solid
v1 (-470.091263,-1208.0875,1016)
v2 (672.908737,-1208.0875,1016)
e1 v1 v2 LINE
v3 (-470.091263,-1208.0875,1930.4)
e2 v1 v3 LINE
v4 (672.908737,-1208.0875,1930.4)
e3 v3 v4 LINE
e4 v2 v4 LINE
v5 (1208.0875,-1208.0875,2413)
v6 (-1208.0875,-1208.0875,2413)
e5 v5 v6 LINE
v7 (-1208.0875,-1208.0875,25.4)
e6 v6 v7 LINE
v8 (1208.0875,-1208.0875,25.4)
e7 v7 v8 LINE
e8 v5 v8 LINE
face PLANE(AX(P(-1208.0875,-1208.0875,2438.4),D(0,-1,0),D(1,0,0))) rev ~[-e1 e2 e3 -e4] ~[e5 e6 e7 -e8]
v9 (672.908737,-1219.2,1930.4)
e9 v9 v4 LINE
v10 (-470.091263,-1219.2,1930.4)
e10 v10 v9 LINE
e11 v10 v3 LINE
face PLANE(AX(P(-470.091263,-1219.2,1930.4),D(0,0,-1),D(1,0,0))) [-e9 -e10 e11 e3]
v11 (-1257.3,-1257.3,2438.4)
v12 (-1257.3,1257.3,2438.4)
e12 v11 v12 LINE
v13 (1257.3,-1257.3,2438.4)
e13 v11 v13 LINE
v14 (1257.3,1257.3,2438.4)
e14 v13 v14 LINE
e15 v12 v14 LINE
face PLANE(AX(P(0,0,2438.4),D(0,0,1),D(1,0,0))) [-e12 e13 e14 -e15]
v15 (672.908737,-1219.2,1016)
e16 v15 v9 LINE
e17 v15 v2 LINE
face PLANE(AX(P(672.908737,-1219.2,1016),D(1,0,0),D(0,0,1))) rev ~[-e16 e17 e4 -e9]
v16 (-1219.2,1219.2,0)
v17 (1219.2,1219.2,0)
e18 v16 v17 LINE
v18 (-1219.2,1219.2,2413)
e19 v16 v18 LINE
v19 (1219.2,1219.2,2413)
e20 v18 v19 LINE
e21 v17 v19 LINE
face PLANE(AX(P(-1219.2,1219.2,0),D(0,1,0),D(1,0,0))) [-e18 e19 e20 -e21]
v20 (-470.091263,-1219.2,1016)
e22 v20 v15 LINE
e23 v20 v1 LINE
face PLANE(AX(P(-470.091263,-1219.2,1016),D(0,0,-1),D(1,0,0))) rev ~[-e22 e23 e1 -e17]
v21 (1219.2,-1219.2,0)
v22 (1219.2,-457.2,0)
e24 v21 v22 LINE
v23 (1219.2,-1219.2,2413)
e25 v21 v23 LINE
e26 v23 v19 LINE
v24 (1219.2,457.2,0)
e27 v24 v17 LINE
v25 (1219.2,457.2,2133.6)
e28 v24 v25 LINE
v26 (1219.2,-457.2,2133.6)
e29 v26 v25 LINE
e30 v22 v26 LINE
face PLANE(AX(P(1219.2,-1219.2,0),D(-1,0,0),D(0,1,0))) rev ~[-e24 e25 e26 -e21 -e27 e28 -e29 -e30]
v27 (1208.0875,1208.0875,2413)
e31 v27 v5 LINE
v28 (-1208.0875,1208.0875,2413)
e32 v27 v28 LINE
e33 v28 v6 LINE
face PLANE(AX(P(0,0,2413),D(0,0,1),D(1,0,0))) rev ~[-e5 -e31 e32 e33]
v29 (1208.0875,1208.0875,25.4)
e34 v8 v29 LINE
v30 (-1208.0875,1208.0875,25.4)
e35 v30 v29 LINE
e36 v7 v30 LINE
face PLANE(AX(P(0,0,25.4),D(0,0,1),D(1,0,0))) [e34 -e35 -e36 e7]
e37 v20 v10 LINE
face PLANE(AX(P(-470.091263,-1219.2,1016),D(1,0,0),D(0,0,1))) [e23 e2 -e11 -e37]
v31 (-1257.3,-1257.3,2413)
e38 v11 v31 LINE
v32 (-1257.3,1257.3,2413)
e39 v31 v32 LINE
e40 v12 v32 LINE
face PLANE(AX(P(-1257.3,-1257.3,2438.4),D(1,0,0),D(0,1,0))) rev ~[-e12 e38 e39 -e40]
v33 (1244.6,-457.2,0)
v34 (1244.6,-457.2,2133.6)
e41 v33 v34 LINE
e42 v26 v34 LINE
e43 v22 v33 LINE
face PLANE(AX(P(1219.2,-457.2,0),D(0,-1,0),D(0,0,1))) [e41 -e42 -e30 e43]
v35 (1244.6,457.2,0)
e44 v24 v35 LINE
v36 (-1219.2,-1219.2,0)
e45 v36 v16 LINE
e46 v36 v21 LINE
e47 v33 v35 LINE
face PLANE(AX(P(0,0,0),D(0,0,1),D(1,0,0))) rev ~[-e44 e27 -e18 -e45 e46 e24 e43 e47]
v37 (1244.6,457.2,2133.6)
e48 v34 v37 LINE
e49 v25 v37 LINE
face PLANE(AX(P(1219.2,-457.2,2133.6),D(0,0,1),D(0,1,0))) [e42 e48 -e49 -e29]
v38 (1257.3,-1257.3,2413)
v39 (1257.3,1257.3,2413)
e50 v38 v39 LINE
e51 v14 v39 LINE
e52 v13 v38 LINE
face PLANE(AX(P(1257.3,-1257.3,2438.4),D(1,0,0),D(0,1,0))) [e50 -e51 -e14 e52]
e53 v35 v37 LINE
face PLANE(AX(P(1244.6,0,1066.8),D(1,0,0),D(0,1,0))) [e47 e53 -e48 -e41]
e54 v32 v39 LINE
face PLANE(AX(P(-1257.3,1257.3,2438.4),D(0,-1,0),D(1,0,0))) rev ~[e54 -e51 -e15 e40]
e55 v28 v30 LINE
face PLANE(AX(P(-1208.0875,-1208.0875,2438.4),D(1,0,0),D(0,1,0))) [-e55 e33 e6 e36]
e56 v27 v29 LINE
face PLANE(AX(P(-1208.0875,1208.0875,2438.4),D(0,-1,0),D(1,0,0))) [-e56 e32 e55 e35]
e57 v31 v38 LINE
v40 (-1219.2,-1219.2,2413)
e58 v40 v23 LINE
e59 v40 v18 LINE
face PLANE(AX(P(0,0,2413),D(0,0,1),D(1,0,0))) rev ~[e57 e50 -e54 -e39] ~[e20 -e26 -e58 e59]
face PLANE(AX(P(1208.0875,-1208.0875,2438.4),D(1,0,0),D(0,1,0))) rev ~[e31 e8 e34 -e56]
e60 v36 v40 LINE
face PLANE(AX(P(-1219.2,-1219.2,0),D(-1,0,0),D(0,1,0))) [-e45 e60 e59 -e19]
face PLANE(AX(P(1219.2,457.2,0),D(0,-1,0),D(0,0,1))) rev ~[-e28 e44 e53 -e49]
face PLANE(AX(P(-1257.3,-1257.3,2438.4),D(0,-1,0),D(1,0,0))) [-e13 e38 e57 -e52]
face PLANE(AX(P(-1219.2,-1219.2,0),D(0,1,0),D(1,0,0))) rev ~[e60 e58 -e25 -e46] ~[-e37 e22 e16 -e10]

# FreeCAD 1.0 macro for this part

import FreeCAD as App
import Part
import Sketcher

V = App.Vector
Q = App.Units.Quantity

doc = App.newDocument("Part")
body = doc.addObject("PartDesign::Body", "Body")

sketch1 = body.newObject("Sketcher::SketchObject", "Sketch")
sketch1.AttachmentSupport = (doc.getObject("XY_Plane"), [""])
sketch1.MapMode = "FlatFace"
sketch1.addGeometry(Part.LineSegment(V(-1219, 1219, 0), V(-1219, -1219, 0)), False)
sketch1.addGeometry(Part.LineSegment(V(-1219, -1219, 0), V(1219, -1219, 0)), False)
sketch1.addGeometry(Part.LineSegment(V(1219, -1219, 0), V(1219, 1219, 0)), False)
sketch1.addGeometry(Part.LineSegment(V(1219, 1219, 0), V(-1219, 1219, 0)), False)
sketch1.addConstraint(Sketcher.Constraint("Coincident", 0, 2, 1, 1))
sketch1.addConstraint(Sketcher.Constraint("Coincident", 1, 2, 2, 1))
sketch1.addConstraint(Sketcher.Constraint("Coincident", 2, 2, 3, 1))
sketch1.addConstraint(Sketcher.Constraint("Coincident", 3, 2, 0, 1))
sketch1.addConstraint(Sketcher.Constraint("Vertical", 0))
sketch1.addConstraint(Sketcher.Constraint("Horizontal", 1))
sketch1.addConstraint(Sketcher.Constraint("Vertical", 2))
sketch1.addConstraint(Sketcher.Constraint("Horizontal", 3))
sketch1.addConstraint(Sketcher.Constraint("Symmetric", 0, 2, 2, 2, -1, 1))
sketch1.addConstraint(Sketcher.Constraint("Equal", 3, 0))
sketch1.addConstraint(Sketcher.Constraint("DistanceX", 1, 1, 1, 2, Q("96 in")))
pad1 = body.newObject("PartDesign::Pad", "Pad")
pad1.Profile = sketch1
pad1.Length = Q("96 in")

sketch2 = body.newObject("Sketcher::SketchObject", "Sketch001")
sketch2.AttachmentSupport = (doc.getObject("XY_Plane"), [""])
sketch2.MapMode = "FlatFace"
sketch2.AttachmentOffset = App.Placement(V(0, 0, 96 * 25.4), App.Rotation())
sketch2.addGeometry(Part.LineSegment(V(-1208, 1208, 0), V(-1208, -1208, 0)), False)
sketch2.addGeometry(Part.LineSegment(V(-1208, -1208, 0), V(1208, -1208, 0)), False)
sketch2.addGeometry(Part.LineSegment(V(1208, -1208, 0), V(1208, 1208, 0)), False)
sketch2.addGeometry(Part.LineSegment(V(1208, 1208, 0), V(-1208, 1208, 0)), False)
sketch2.addConstraint(Sketcher.Constraint("Coincident", 0, 2, 1, 1))
sketch2.addConstraint(Sketcher.Constraint("Coincident", 1, 2, 2, 1))
sketch2.addConstraint(Sketcher.Constraint("Coincident", 2, 2, 3, 1))
sketch2.addConstraint(Sketcher.Constraint("Coincident", 3, 2, 0, 1))
sketch2.addConstraint(Sketcher.Constraint("Vertical", 0))
sketch2.addConstraint(Sketcher.Constraint("Horizontal", 1))
sketch2.addConstraint(Sketcher.Constraint("Vertical", 2))
sketch2.addConstraint(Sketcher.Constraint("Horizontal", 3))
sketch2.addConstraint(Sketcher.Constraint("Symmetric", 0, 2, 2, 2, -1, 1))
sketch2.addConstraint(Sketcher.Constraint("Equal", 3, 0))
sketch2.addConstraint(Sketcher.Constraint("DistanceX", 1, 1, 1, 2, Q("95.125 in")))
pocket1 = body.newObject("PartDesign::Pocket", "Pocket")
pocket1.Profile = sketch2
pocket1.Length = Q("95 in")

sketch3 = body.newObject("Sketcher::SketchObject", "Sketch002")
sketch3.AttachmentSupport = (doc.getObject("YZ_Plane"), [""])
sketch3.MapMode = "FlatFace"
sketch3.AttachmentOffset = App.Placement(V(0, 0, 48 * 25.4), App.Rotation())
sketch3.addGeometry(Part.LineSegment(V(-457, 2134, 0), V(-457, 0, 0)), False)
sketch3.addGeometry(Part.LineSegment(V(-457, 0, 0), V(457, 0, 0)), False)
sketch3.addGeometry(Part.LineSegment(V(457, 0, 0), V(457, 2134, 0)), False)
sketch3.addGeometry(Part.LineSegment(V(457, 2134, 0), V(-457, 2134, 0)), False)
sketch3.addConstraint(Sketcher.Constraint("Coincident", 0, 2, 1, 1))
sketch3.addConstraint(Sketcher.Constraint("Coincident", 1, 2, 2, 1))
sketch3.addConstraint(Sketcher.Constraint("Coincident", 2, 2, 3, 1))
sketch3.addConstraint(Sketcher.Constraint("Coincident", 3, 2, 0, 1))
sketch3.addConstraint(Sketcher.Constraint("Vertical", 0))
sketch3.addConstraint(Sketcher.Constraint("Horizontal", 1))
sketch3.addConstraint(Sketcher.Constraint("Vertical", 2))
sketch3.addConstraint(Sketcher.Constraint("Horizontal", 3))
sketch3.addConstraint(Sketcher.Constraint("Symmetric", 0, 2, 1, 2, -1, 1))
sketch3.addConstraint(Sketcher.Constraint("DistanceX", 1, 1, 1, 2, Q("36 in")))
sketch3.addConstraint(Sketcher.Constraint("DistanceY", 0, 2, 0, 1, Q("84 in")))
pad2 = body.newObject("PartDesign::Pad", "Pad001")
pad2.Profile = sketch3
pad2.Length = Q("1 in")

sketch4 = body.newObject("Sketcher::SketchObject", "Sketch003")
sketch4.AttachmentSupport = (doc.getObject("XZ_Plane"), [""])
sketch4.MapMode = "FlatFace"
sketch4.AttachmentOffset = App.Placement(V(0, 0, 48 * 25.4), App.Rotation())
sketch4.addGeometry(Part.LineSegment(V(-470, 1930, 0), V(-470, 1016, 0)), False)
sketch4.addGeometry(Part.LineSegment(V(-470, 1016, 0), V(673, 1016, 0)), False)
sketch4.addGeometry(Part.LineSegment(V(673, 1016, 0), V(673, 1930, 0)), False)
sketch4.addGeometry(Part.LineSegment(V(673, 1930, 0), V(-470, 1930, 0)), False)
sketch4.addConstraint(Sketcher.Constraint("Coincident", 0, 2, 1, 1))
sketch4.addConstraint(Sketcher.Constraint("Coincident", 1, 2, 2, 1))
sketch4.addConstraint(Sketcher.Constraint("Coincident", 2, 2, 3, 1))
sketch4.addConstraint(Sketcher.Constraint("Coincident", 3, 2, 0, 1))
sketch4.addConstraint(Sketcher.Constraint("Vertical", 0))
sketch4.addConstraint(Sketcher.Constraint("Horizontal", 1))
sketch4.addConstraint(Sketcher.Constraint("Vertical", 2))
sketch4.addConstraint(Sketcher.Constraint("Horizontal", 3))
sketch4.addConstraint(Sketcher.Constraint("DistanceX", 1, 1, 1, 2, Q("45 in")))
sketch4.addConstraint(Sketcher.Constraint("DistanceY", 0, 2, 0, 1, Q("36 in")))
sketch4.addConstraint(Sketcher.Constraint("DistanceY", -1, 1, 0, 2, Q("40 in")))
sketch4.addConstraint(Sketcher.Constraint("DistanceX", 0, 2, -1, 1, 470.091263))
pocket2 = body.newObject("PartDesign::Pocket", "Pocket001")
pocket2.Profile = sketch4
pocket2.Length = Q("1 in")

sketch5 = body.newObject("Sketcher::SketchObject", "Sketch004")
sketch5.AttachmentSupport = (doc.getObject("XY_Plane"), [""])
sketch5.MapMode = "FlatFace"
sketch5.AttachmentOffset = App.Placement(V(0, 0, 96 * 25.4), App.Rotation())
sketch5.addGeometry(Part.LineSegment(V(-1257, 1257, 0), V(-1257, -1257, 0)), False)
sketch5.addGeometry(Part.LineSegment(V(-1257, -1257, 0), V(1257, -1257, 0)), False)
sketch5.addGeometry(Part.LineSegment(V(1257, -1257, 0), V(1257, 1257, 0)), False)
sketch5.addGeometry(Part.LineSegment(V(1257, 1257, 0), V(-1257, 1257, 0)), False)
sketch5.addConstraint(Sketcher.Constraint("Coincident", 0, 2, 1, 1))
sketch5.addConstraint(Sketcher.Constraint("Coincident", 1, 2, 2, 1))
sketch5.addConstraint(Sketcher.Constraint("Coincident", 2, 2, 3, 1))
sketch5.addConstraint(Sketcher.Constraint("Coincident", 3, 2, 0, 1))
sketch5.addConstraint(Sketcher.Constraint("Vertical", 0))
sketch5.addConstraint(Sketcher.Constraint("Horizontal", 1))
sketch5.addConstraint(Sketcher.Constraint("Vertical", 2))
sketch5.addConstraint(Sketcher.Constraint("Horizontal", 3))
sketch5.addConstraint(Sketcher.Constraint("Symmetric", 0, 2, 2, 2, -1, 1))
sketch5.addConstraint(Sketcher.Constraint("Equal", 3, 0))
sketch5.addConstraint(Sketcher.Constraint("DistanceX", 1, 1, 1, 2, Q("99 in")))
pad3 = body.newObject("PartDesign::Pad", "Pad002")
pad3.Profile = sketch5
pad3.Length = Q("1 in")
pad3.Reversed = True

doc.recompute()
